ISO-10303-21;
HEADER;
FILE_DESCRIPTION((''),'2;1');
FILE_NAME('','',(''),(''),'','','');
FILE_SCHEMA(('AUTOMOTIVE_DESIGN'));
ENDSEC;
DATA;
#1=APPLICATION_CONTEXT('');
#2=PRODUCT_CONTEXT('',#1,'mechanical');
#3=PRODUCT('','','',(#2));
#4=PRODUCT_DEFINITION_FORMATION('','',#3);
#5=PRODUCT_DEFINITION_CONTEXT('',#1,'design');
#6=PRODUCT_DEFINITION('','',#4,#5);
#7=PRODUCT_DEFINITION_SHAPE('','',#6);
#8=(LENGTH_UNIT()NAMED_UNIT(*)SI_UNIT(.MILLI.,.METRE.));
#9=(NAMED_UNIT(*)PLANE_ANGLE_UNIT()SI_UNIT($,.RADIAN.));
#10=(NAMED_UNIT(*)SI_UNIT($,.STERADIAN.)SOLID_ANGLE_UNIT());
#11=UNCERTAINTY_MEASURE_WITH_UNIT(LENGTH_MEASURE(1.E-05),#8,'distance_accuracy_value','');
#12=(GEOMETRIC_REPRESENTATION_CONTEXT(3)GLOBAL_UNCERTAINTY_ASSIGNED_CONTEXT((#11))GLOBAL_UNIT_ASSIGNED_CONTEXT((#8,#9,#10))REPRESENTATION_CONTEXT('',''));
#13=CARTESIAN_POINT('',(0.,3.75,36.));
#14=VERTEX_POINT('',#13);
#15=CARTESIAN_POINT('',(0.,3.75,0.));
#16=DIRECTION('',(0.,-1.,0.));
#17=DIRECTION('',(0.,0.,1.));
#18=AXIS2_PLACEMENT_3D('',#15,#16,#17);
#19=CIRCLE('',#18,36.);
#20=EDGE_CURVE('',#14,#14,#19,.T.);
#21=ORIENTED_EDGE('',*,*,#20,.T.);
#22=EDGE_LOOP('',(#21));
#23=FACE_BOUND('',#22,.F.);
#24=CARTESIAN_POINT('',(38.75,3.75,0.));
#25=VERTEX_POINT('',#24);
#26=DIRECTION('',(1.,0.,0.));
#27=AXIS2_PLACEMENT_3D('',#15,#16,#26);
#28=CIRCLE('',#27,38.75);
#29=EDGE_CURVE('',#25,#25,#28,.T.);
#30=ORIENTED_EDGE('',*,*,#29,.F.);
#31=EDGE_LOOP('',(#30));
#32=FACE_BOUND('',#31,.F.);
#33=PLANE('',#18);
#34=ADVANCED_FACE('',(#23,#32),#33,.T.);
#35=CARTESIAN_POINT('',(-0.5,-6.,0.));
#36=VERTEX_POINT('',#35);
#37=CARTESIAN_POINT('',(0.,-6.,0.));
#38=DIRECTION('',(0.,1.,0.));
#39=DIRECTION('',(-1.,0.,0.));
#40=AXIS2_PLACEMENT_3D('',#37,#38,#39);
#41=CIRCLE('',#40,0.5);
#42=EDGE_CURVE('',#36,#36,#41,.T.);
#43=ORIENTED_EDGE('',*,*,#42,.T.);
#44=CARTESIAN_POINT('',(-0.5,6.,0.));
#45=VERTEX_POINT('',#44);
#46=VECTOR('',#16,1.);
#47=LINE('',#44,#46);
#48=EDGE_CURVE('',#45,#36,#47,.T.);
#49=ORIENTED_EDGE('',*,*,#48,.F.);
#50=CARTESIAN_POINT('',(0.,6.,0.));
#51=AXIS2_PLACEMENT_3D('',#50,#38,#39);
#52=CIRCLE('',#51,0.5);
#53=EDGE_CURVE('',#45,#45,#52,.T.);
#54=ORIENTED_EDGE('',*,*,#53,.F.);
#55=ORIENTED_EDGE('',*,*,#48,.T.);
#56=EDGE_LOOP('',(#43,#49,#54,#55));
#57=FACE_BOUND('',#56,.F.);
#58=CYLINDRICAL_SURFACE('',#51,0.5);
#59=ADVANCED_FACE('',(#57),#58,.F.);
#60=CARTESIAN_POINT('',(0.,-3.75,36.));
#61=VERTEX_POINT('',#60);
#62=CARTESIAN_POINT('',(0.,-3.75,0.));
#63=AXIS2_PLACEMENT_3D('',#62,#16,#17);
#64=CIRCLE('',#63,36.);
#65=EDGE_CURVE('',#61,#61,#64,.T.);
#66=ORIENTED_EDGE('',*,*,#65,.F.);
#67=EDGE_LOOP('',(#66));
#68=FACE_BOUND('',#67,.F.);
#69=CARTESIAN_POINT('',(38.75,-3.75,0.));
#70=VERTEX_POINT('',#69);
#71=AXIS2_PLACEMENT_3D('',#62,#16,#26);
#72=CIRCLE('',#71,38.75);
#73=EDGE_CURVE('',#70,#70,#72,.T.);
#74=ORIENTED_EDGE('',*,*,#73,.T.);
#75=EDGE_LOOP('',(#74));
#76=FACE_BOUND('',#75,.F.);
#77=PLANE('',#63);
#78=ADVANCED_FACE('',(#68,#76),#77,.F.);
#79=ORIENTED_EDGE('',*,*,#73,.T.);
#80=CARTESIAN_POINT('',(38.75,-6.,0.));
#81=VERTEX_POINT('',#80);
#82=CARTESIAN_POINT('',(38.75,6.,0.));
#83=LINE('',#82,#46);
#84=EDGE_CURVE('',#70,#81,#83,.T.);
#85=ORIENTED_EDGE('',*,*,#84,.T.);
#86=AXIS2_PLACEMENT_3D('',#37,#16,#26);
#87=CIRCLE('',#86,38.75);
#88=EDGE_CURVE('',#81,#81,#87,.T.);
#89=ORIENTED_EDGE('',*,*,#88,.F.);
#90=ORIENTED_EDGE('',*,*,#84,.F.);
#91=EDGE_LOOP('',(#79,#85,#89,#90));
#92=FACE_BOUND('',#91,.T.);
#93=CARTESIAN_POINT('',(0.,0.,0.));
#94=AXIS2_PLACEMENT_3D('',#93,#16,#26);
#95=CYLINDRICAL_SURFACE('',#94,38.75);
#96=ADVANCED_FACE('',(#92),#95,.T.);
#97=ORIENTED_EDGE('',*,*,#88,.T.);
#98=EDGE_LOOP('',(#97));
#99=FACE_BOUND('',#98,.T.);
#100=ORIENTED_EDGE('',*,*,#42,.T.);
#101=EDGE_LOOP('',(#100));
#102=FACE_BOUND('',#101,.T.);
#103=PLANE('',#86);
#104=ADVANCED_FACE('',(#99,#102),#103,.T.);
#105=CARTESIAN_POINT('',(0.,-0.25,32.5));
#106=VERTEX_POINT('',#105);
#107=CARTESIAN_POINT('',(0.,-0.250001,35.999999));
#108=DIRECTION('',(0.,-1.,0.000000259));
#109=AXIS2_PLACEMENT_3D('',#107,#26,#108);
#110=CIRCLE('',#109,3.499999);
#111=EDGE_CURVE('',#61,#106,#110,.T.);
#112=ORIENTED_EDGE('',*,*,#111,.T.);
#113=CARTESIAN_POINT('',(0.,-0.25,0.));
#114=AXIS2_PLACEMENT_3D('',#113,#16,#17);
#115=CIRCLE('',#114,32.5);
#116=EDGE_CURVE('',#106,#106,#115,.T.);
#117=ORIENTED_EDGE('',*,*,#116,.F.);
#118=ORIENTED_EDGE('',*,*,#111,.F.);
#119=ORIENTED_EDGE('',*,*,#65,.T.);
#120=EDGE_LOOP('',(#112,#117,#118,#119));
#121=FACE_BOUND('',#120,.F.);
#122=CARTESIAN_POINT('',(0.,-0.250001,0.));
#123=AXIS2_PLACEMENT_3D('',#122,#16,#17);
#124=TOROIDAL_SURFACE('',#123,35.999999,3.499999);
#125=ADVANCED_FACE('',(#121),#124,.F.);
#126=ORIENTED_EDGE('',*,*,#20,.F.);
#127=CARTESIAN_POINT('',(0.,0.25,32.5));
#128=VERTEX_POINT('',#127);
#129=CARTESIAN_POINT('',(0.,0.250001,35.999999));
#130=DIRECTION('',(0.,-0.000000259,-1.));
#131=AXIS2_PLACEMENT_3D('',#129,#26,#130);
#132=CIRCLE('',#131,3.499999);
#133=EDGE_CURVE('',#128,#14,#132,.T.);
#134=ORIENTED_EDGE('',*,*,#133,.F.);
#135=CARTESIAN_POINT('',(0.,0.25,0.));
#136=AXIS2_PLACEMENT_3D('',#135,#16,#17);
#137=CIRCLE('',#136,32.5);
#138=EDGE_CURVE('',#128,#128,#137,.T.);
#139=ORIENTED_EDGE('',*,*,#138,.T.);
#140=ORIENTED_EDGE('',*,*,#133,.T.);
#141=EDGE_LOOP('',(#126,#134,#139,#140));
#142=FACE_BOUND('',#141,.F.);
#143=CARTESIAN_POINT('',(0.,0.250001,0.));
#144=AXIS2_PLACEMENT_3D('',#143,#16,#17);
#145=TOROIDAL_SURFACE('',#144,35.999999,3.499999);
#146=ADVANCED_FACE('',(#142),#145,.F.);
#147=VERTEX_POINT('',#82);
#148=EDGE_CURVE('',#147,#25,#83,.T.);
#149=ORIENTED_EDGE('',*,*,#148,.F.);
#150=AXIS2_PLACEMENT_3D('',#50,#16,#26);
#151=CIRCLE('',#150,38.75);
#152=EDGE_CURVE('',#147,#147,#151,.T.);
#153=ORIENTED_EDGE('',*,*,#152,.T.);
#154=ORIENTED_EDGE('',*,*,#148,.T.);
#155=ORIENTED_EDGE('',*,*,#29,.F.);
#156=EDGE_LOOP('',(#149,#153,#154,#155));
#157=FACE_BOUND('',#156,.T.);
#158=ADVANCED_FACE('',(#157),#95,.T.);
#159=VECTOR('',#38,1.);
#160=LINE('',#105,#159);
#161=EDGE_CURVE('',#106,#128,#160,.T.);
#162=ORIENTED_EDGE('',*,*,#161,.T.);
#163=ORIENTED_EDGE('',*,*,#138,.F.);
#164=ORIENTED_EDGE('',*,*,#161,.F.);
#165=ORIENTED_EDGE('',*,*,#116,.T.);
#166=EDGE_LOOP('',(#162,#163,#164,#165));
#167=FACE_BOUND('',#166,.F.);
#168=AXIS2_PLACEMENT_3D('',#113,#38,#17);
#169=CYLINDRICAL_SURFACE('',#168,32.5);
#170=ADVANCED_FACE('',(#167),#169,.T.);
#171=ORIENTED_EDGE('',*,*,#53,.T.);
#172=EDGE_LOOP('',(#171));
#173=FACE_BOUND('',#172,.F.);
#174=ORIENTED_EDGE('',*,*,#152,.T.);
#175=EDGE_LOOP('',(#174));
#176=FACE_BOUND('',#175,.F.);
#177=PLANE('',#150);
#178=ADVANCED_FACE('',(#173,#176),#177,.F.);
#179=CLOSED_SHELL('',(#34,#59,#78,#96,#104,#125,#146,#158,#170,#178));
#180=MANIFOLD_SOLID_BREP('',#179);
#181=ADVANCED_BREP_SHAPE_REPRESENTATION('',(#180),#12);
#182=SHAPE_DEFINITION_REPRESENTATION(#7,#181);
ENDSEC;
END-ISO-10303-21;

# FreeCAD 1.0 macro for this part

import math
import FreeCAD as App
import Part
import Sketcher
from FreeCAD import Vector
Q = App.Units.Quantity

doc = App.newDocument("Part")
params = doc.addObject("Spreadsheet::Sheet", "Params")
for row, (alias, value) in enumerate([
    ("sketch1_diameter", "77.5 mm"),
    ("pad1_length", "12 mm"),
    ("sketch2_radius", "3.499999 mm"),
    ("sketch2_height", "4 mm"),
    ("sketch2_width", "7.5 mm"),
    ("groove_angle", "360 deg"),
    ("sketch3_diameter", "1 mm"),
], start=1):
    params.set(f"A{row}", alias)
    params.set(f"B{row}", "=" + value)
    params.setAlias(f"B{row}", alias)

body = doc.addObject("PartDesign::Body", "Body")

# Sketch on XZ plane
sketch1 = body.newObject("Sketcher::SketchObject", "Sketch")
sketch1.AttachmentSupport = (doc.getObject("XZ_Plane"), [""])
sketch1.MapMode = "FlatFace"
sketch1.addGeometry(Part.Circle(Vector(0, 0, 0), Vector(0, 0, 1), 39), False)
sketch1.addConstraint([
    Sketcher.Constraint("Coincident", 0, 3, -1, 1),
    Sketcher.Constraint("Diameter", 0, Q("77.5 mm")),
])
sketch1.setExpression("Constraints[1]", "Params.sketch1_diameter")
pad1 = body.newObject("PartDesign::Pad", "Pad")
pad1.Profile = sketch1
pad1.setExpression("Length", "Params.pad1_length")
pad1.Midplane = True

# Sketch on YZ plane
sketch2 = body.newObject("Sketcher::SketchObject", "Sketch001")
sketch2.AttachmentSupport = (doc.getObject("YZ_Plane"), [""])
sketch2.MapMode = "FlatFace"
sketch2.addGeometry([
    Part.LineSegment(Vector(3.8, 36, 0), Vector(3.8, 40, 0)),  # 0
    Part.LineSegment(Vector(3.8, 40, 0), Vector(-3.8, 40, 0)),  # 1
    Part.LineSegment(Vector(-3.8, 40, 0), Vector(-3.8, 36, 0)),  # 2
    Part.ArcOfCircle(Part.Circle(Vector(-0.3, 36, 0), Vector(0, 0, 1), 3.5), math.radians(180), math.radians(270)),  # 3
    Part.LineSegment(Vector(-0.2, 32.5, 0), Vector(0.2, 32.5, 0)),  # 4
    Part.ArcOfCircle(Part.Circle(Vector(0.3, 36, 0), Vector(0, 0, 1), 3.5), math.radians(-90), math.radians(0)),  # 5
], False)
sketch2.addConstraint([
    Sketcher.Constraint("Coincident", 0, 2, 1, 1),
    Sketcher.Constraint("Coincident", 1, 2, 2, 1),
    Sketcher.Constraint("Tangent", 2, 2, 3, 1),
    Sketcher.Constraint("Tangent", 3, 2, 4, 1),
    Sketcher.Constraint("Tangent", 4, 2, 5, 1),
    Sketcher.Constraint("Tangent", 5, 2, 0, 1),
    Sketcher.Constraint("Vertical", 0),
    Sketcher.Constraint("Horizontal", 1),
    Sketcher.Constraint("Vertical", 2),
    Sketcher.Constraint("Horizontal", 4),
    Sketcher.Constraint("Equal", 3, 5),
    Sketcher.Constraint("Radius", 3, Q("3.499999 mm")),
    Sketcher.Constraint("DistanceY", 0, 1, 0, 2, Q("4 mm")),
    Sketcher.Constraint("DistanceX", 1, 2, 1, 1, Q("7.5 mm")),
    Sketcher.Constraint("DistanceY", -1, 1, 3, 3, Q("35.999999 mm")),
    Sketcher.Constraint("DistanceX", 3, 3, -1, 1, Q("0.250001 mm")),
])
sketch2.setExpression("Constraints[11]", "Params.sketch2_radius")
sketch2.setExpression("Constraints[12]", "Params.sketch2_height")
sketch2.setExpression("Constraints[13]", "Params.sketch2_width")
groove = body.newObject("PartDesign::Groove", "Groove")
groove.Profile = sketch2
groove.ReferenceAxis = (sketch2, ["H_Axis"])
groove.setExpression("Angle", "Params.groove_angle")

# Sketch on XZ plane
sketch3 = body.newObject("Sketcher::SketchObject", "Sketch002")
sketch3.AttachmentSupport = (doc.getObject("XZ_Plane"), [""])
sketch3.MapMode = "FlatFace"
sketch3.AttachmentOffset = App.Placement(Vector(0, 0, -6), App.Rotation())
sketch3.addGeometry(Part.Circle(Vector(0, 0, 0), Vector(0, 0, 1), 0.5), False)
sketch3.addConstraint([
    Sketcher.Constraint("Coincident", 0, 3, -1, 1),
    Sketcher.Constraint("Diameter", 0, Q("1 mm")),
])
sketch3.setExpression("Constraints[1]", "Params.sketch3_diameter")
pocket1 = body.newObject("PartDesign::Pocket", "Pocket")
pocket1.Profile = sketch3
pocket1.Type = "ThroughAll"
pocket1.Reversed = True

doc.recompute()
